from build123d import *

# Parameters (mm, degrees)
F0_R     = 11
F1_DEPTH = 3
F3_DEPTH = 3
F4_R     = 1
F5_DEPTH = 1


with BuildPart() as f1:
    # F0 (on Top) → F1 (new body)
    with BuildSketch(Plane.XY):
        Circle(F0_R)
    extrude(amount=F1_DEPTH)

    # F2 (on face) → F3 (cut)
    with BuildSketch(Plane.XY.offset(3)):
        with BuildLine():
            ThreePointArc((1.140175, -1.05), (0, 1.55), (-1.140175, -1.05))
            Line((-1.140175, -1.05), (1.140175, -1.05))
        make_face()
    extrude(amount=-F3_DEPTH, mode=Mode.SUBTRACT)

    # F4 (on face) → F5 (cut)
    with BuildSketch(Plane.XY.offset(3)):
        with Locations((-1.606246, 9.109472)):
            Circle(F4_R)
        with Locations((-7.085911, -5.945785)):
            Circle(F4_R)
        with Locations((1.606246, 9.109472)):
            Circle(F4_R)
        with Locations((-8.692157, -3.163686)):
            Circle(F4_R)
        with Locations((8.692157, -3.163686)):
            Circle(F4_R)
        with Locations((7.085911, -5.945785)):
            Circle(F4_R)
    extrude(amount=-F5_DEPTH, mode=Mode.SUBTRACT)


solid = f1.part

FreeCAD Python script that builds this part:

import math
import FreeCAD as App
import Part
import Sketcher
Q = App.Units.Quantity

doc = App.newDocument("Part")
body = doc.addObject("PartDesign::Body", "Body")

sketch1 = body.newObject("Sketcher::SketchObject", "Sketch")
sketch1.AttachmentSupport = (doc.getObject("XY_Plane"), [""])
sketch1.MapMode = "FlatFace"
sketch1.addGeometry(Part.Circle(App.Vector(0, 0, 0), App.Vector(0, 0, 1), 11), False)
sketch1.addConstraint([
    Sketcher.Constraint("Coincident", 0, 3, -1, 1),
    Sketcher.Constraint("Diameter", 0, Q("22 mm")),
])
pad1 = body.newObject("PartDesign::Pad", "Pad")
pad1.Profile = sketch1
pad1.Length = 3

sketch2 = body.newObject("Sketcher::SketchObject", "Sketch001")
sketch2.AttachmentSupport = (doc.getObject("XY_Plane"), [""])
sketch2.MapMode = "FlatFace"
sketch2.AttachmentOffset = App.Placement(App.Vector(0, 0, 3), App.Rotation())
sketch2.addGeometry([
    Part.ArcOfCircle(Part.Circle(App.Vector(0, 0, 0), App.Vector(0, 0, 1), 1.5), math.radians(-43), math.radians(223)),
    Part.LineSegment(App.Vector(-1.1, -1.1, 0), App.Vector(1.1, -1.1, 0)),
], False)
sketch2.addConstraint([
    Sketcher.Constraint("Coincident", 0, 1, 1, 2),
    Sketcher.Constraint("Coincident", 1, 1, 0, 2),
    Sketcher.Constraint("Horizontal", 1),
    Sketcher.Constraint("Coincident", 0, 3, -1, 1),
    Sketcher.Constraint("Radius", 0, Q("1.55 mm")),
    Sketcher.Constraint("DistanceY", 0, 1, -1, 1, Q("1.05 mm")),
])
pocket1 = body.newObject("PartDesign::Pocket", "Pocket")
pocket1.Profile = sketch2
pocket1.Length = 3

sketch3 = body.newObject("Sketcher::SketchObject", "Sketch002")
sketch3.AttachmentSupport = (doc.getObject("XY_Plane"), [""])
sketch3.MapMode = "FlatFace"
sketch3.AttachmentOffset = App.Placement(App.Vector(0, 0, 3), App.Rotation())
sketch3.addGeometry([
    Part.Circle(App.Vector(-1.6, 9.1, 0), App.Vector(0, 0, 1), 1),
    Part.Circle(App.Vector(-7.1, -5.9, 0), App.Vector(0, 0, 1), 1),
    Part.Circle(App.Vector(1.6, 9.1, 0), App.Vector(0, 0, 1), 1),
    Part.Circle(App.Vector(-8.7, -3.2, 0), App.Vector(0, 0, 1), 1),
    Part.Circle(App.Vector(8.7, -3.2, 0), App.Vector(0, 0, 1), 1),
    Part.Circle(App.Vector(7.1, -5.9, 0), App.Vector(0, 0, 1), 1),
], False)
sketch3.addConstraint([
    Sketcher.Constraint("Equal", 0, 1),
    Sketcher.Constraint("Equal", 1, 2),
    Sketcher.Constraint("Equal", 2, 3),
    Sketcher.Constraint("Equal", 3, 4),
    Sketcher.Constraint("Equal", 4, 5),
    Sketcher.Constraint("Symmetric", 0, 3, 2, 3, -2),
    Sketcher.Constraint("Symmetric", 3, 3, 4, 3, -2),
    Sketcher.Constraint("Symmetric", 1, 3, 5, 3, -2),
    Sketcher.Constraint("Diameter", 0, Q("2 mm")),
    Sketcher.Constraint("DistanceY", 1, 3, 3, 3, Q("2.782099 mm")),
    Sketcher.Constraint("DistanceX", 1, 3, -1, 1, Q("7.085911 mm")),
    Sketcher.Constraint("DistanceX", 3, 3, 0, 3, Q("7.085911 mm")),
    Sketcher.Constraint("DistanceX", 1, 3, 4, 3, Q("15.778068 mm")),
    Sketcher.Constraint("DistanceY", -1, 1, 0, 3, Q("9.109472 mm")),
    Sketcher.Constraint("DistanceY", 1, 3, -1, 1, Q("5.945785 mm")),
])
pocket2 = body.newObject("PartDesign::Pocket", "Pocket001")
pocket2.Profile = sketch3
pocket2.Length = 1

doc.recompute()
